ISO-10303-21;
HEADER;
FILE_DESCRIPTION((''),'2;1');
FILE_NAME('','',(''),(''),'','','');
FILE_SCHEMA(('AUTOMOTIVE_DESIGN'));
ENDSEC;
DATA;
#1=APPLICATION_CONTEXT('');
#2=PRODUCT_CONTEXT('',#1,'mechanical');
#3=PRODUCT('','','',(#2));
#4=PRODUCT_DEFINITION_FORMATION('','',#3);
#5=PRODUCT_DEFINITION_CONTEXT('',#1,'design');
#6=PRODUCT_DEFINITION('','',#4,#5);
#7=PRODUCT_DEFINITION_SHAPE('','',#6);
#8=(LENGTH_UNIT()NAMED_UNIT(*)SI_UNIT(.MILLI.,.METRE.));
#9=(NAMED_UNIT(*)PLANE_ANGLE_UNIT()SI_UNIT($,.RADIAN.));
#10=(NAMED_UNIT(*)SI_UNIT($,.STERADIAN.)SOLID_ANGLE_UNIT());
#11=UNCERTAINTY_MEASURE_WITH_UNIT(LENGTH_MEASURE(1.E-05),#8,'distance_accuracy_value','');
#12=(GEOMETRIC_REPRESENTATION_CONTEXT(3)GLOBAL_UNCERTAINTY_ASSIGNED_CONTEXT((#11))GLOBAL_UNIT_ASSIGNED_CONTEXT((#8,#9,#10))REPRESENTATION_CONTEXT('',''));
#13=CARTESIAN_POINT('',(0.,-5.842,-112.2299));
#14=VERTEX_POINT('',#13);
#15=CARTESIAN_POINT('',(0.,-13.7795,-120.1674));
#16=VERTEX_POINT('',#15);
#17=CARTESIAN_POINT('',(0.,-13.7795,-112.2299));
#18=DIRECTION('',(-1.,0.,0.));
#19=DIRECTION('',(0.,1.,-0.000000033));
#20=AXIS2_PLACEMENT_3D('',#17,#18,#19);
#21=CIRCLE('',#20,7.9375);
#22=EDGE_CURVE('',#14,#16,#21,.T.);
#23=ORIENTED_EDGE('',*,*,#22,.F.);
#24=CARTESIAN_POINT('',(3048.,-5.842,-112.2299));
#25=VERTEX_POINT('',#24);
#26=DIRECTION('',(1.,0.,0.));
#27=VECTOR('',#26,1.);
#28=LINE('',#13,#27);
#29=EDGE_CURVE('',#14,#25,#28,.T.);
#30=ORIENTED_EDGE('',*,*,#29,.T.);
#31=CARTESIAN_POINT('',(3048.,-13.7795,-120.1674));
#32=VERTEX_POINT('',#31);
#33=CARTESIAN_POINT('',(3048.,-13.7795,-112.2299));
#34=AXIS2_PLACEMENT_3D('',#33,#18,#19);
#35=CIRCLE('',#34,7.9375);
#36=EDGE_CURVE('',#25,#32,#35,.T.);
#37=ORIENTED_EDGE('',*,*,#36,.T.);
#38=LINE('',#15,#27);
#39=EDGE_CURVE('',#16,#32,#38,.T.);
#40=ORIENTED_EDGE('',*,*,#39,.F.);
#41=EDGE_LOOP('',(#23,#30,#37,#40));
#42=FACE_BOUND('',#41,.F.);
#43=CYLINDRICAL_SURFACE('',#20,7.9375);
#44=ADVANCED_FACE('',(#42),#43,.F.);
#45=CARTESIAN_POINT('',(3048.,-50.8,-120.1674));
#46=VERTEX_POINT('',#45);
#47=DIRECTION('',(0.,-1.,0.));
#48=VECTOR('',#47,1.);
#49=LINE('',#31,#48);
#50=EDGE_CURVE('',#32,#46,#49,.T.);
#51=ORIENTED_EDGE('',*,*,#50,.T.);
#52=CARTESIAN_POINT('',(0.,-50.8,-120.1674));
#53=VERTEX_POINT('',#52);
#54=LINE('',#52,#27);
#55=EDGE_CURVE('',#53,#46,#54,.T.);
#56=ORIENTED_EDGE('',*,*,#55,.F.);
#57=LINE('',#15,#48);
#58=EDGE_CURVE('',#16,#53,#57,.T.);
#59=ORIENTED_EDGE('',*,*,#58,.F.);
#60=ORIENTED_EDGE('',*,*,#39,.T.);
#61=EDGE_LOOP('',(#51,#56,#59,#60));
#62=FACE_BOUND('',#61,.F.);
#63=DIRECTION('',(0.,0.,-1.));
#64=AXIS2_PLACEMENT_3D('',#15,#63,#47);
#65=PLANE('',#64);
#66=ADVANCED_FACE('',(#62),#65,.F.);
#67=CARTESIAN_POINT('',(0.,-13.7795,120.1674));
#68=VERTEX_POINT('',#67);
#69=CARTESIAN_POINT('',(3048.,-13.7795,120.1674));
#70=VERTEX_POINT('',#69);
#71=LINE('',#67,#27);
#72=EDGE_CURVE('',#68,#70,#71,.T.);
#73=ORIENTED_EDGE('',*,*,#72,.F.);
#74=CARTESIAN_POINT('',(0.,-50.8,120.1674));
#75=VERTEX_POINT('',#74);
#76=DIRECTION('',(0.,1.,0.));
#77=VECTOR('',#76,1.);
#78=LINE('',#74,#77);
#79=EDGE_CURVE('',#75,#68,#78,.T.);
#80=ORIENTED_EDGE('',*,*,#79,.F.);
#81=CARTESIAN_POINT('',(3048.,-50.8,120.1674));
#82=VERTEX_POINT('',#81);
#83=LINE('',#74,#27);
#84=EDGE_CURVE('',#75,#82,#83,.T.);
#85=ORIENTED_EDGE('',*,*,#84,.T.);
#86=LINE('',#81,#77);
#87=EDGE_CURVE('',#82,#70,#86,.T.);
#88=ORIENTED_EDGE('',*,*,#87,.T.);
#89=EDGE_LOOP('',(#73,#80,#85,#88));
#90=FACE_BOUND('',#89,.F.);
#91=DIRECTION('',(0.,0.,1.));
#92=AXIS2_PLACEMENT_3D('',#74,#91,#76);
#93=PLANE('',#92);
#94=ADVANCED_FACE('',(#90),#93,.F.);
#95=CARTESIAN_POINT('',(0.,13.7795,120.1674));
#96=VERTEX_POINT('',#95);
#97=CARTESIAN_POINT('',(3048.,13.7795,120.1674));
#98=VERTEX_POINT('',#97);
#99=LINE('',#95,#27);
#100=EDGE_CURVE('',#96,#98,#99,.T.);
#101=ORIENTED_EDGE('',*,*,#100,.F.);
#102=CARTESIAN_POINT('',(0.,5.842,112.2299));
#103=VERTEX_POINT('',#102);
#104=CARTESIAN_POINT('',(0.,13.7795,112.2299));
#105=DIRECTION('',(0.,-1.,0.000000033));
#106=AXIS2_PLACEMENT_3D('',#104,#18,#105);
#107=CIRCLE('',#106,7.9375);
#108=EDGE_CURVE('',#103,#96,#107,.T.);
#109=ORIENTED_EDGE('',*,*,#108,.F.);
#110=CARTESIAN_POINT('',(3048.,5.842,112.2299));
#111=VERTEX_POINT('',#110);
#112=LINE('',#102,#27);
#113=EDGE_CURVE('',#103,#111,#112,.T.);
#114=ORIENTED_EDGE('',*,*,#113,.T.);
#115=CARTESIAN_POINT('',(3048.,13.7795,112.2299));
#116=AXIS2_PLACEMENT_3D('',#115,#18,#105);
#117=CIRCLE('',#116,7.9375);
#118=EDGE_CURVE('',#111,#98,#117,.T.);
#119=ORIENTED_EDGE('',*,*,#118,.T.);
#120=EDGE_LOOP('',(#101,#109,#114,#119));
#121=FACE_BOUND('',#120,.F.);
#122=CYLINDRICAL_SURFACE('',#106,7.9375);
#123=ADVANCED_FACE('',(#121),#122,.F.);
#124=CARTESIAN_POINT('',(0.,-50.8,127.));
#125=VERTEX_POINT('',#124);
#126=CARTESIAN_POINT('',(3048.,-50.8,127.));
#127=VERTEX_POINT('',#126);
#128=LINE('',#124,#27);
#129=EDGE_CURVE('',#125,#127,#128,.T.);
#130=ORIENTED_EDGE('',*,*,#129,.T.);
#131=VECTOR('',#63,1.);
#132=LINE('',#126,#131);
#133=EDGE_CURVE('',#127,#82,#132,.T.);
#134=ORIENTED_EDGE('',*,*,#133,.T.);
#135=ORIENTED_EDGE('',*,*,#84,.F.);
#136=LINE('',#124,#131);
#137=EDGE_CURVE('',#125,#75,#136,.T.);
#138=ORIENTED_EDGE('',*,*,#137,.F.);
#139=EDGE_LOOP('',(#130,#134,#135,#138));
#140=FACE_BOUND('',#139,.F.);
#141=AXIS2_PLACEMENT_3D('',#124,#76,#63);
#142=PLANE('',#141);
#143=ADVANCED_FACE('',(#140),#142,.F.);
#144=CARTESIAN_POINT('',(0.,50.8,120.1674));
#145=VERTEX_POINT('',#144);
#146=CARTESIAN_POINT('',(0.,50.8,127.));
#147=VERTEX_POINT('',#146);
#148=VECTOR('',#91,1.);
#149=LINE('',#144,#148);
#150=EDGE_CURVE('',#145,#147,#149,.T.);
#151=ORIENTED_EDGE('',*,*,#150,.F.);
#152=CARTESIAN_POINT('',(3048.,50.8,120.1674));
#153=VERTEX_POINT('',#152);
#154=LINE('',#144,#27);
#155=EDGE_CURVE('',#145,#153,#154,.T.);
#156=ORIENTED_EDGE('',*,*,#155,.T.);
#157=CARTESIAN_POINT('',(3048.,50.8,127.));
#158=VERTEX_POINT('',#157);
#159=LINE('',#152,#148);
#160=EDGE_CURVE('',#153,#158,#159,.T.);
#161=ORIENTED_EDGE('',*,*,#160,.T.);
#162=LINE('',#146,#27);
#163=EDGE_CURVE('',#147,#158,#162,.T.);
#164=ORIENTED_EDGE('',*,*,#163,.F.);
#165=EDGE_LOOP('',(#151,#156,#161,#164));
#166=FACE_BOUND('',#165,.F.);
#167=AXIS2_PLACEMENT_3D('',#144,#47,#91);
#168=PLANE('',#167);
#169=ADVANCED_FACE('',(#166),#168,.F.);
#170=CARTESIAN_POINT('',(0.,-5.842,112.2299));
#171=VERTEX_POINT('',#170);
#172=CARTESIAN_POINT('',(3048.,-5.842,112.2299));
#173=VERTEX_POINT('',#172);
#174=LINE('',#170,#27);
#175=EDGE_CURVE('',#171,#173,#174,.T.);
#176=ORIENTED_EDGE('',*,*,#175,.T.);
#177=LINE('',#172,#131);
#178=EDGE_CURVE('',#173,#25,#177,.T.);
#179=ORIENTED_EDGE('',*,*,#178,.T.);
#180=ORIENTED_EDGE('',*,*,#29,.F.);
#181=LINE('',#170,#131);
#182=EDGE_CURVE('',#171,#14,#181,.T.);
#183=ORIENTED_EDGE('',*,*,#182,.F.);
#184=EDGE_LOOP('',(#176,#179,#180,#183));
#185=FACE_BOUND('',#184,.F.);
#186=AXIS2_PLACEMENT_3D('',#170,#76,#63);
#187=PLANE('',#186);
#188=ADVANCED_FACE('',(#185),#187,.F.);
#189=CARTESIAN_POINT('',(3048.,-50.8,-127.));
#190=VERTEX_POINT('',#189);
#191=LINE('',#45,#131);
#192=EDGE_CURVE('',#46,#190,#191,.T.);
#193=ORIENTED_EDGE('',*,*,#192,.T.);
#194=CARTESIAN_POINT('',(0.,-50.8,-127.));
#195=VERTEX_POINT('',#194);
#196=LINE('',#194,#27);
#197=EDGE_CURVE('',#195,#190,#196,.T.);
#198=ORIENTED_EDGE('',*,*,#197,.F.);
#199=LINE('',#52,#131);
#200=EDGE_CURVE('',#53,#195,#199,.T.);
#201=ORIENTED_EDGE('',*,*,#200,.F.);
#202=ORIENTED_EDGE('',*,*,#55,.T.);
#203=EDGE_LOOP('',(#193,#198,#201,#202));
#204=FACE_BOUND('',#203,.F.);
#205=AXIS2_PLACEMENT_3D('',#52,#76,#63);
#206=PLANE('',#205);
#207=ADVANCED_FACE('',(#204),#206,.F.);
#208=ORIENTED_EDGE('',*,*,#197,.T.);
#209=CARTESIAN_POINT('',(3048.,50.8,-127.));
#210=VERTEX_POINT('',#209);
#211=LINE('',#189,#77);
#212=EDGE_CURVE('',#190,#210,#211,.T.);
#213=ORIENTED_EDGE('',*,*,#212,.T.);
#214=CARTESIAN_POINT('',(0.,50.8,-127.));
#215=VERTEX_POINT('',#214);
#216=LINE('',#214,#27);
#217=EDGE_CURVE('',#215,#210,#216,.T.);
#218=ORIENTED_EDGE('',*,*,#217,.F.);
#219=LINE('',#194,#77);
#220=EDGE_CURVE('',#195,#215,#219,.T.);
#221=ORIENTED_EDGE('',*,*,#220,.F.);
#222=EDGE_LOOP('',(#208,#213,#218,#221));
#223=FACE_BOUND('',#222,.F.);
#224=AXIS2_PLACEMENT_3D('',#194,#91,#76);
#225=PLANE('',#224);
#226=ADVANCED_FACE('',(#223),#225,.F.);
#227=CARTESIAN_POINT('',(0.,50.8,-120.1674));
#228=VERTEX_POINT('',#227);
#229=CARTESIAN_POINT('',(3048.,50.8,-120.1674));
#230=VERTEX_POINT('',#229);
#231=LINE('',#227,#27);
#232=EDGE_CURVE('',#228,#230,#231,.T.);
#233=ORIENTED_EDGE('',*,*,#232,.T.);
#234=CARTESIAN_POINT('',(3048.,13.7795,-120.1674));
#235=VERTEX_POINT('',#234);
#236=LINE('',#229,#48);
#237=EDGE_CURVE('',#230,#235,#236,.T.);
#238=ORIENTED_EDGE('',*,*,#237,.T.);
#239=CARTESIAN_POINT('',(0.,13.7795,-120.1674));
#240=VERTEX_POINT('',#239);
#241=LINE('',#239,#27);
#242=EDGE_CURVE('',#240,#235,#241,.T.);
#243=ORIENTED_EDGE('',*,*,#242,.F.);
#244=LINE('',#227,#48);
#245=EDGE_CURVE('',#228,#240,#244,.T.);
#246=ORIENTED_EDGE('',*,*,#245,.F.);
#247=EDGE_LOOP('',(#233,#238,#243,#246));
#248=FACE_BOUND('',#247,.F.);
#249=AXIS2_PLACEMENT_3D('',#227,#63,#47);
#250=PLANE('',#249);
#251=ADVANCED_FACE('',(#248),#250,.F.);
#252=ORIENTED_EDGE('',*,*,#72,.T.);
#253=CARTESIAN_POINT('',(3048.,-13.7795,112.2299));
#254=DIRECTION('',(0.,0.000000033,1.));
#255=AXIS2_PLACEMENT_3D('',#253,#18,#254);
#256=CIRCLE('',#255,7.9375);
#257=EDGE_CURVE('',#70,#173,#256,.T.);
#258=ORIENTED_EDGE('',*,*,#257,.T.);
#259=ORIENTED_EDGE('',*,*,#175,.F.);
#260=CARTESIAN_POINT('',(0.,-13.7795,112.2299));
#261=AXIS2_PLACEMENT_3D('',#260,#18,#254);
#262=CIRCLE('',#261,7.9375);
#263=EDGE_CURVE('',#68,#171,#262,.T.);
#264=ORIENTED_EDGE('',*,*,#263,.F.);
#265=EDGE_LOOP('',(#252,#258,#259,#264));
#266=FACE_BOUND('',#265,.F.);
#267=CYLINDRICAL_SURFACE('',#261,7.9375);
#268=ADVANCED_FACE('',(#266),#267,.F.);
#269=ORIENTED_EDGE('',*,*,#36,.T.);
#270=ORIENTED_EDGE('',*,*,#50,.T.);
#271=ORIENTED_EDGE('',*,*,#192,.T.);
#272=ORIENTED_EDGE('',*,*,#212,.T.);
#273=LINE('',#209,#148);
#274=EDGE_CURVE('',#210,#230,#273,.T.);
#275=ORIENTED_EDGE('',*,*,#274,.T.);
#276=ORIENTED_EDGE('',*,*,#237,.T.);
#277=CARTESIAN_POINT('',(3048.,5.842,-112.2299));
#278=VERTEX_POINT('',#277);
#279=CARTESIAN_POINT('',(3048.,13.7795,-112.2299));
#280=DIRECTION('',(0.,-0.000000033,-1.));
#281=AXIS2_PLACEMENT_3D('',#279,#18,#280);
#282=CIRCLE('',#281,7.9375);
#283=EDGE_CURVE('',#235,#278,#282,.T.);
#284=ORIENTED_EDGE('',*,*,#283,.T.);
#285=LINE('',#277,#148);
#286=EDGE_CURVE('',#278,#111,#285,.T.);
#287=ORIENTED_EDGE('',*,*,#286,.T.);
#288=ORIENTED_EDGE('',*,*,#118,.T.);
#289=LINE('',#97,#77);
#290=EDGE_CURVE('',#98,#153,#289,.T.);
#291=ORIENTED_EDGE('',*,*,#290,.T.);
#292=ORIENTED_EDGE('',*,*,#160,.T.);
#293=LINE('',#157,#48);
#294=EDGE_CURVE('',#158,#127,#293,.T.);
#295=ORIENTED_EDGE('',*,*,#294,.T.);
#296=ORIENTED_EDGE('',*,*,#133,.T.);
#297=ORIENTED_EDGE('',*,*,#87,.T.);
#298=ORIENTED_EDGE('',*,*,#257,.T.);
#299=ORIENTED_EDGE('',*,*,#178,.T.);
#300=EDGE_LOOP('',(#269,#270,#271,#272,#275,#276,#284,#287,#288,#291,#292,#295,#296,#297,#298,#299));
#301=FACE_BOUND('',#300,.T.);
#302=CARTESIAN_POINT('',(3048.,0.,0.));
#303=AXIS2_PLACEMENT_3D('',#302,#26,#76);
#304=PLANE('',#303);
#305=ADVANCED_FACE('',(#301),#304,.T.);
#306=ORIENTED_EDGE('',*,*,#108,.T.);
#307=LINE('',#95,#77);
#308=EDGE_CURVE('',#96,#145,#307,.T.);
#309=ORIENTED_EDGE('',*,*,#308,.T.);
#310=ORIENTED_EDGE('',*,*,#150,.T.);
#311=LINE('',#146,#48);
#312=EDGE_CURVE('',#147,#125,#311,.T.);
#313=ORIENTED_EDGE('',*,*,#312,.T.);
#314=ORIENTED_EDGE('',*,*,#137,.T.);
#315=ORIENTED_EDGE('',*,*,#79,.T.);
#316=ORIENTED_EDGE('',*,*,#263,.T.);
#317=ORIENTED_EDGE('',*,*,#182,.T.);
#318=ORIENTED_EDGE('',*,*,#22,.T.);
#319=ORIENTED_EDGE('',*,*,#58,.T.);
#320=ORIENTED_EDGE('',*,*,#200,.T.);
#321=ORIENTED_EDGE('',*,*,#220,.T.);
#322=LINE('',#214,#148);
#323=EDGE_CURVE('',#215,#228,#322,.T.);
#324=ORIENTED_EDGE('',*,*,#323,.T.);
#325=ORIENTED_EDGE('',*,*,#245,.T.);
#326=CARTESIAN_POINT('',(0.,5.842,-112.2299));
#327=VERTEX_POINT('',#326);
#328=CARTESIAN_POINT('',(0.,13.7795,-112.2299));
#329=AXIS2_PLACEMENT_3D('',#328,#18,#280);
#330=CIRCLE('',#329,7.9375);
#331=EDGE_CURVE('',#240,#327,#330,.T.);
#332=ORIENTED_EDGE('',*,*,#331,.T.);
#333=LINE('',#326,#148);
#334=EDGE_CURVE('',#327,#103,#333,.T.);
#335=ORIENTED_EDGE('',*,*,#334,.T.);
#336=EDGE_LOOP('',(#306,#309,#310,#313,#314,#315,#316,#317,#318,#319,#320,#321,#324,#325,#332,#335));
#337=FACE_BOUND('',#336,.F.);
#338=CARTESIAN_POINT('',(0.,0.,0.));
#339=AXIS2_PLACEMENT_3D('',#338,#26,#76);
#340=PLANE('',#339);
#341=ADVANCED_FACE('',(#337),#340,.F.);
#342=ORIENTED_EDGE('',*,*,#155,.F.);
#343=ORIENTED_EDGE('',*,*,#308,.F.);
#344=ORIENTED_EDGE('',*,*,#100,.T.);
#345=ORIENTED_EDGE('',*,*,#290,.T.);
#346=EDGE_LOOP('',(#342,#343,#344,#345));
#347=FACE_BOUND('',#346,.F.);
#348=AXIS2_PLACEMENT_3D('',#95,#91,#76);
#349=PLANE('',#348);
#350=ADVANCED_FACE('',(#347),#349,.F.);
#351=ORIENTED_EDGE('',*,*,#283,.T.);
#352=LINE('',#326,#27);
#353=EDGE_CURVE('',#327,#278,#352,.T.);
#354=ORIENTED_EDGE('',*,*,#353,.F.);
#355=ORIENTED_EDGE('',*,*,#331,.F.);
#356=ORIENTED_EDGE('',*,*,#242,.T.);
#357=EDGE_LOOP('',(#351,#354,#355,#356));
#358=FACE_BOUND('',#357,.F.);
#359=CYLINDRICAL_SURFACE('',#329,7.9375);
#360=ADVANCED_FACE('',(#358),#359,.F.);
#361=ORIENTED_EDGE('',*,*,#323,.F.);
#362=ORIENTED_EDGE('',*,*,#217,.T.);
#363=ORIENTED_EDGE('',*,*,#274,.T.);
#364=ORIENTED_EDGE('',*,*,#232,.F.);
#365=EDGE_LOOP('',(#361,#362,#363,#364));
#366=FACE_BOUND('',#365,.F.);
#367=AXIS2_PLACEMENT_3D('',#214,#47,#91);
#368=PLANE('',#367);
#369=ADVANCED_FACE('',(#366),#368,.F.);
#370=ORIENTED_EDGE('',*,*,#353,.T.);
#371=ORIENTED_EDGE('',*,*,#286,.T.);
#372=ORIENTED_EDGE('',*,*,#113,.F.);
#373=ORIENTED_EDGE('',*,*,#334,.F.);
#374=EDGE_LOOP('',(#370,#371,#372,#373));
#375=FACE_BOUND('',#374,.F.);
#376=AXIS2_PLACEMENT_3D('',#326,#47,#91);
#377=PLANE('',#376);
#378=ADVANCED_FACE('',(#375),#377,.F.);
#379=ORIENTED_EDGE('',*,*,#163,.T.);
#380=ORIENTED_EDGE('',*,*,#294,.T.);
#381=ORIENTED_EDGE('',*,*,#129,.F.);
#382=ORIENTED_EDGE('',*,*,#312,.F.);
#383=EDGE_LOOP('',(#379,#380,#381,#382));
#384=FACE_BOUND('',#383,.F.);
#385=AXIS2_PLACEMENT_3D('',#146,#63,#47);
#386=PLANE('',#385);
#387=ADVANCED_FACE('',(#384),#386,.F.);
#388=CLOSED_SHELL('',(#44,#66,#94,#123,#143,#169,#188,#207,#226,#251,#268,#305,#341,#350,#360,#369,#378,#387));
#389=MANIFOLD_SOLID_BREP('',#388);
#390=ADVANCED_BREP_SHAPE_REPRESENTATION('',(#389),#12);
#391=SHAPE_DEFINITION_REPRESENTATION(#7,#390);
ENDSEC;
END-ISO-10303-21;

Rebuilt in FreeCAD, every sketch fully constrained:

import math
import FreeCAD as App
import Part
import Sketcher
from FreeCAD import Vector
Q = App.Units.Quantity

doc = App.newDocument("Part")
body = doc.addObject("PartDesign::Body", "Body")

sketch1 = body.newObject("Sketcher::SketchObject", "Sketch")
sketch1.AttachmentSupport = (doc.getObject("YZ_Plane"), [""])
sketch1.MapMode = "FlatFace"
sketch1.addGeometry([
    Part.LineSegment(Vector(-6, 112, 0), Vector(-6, -112, 0)),
    Part.ArcOfCircle(Part.Circle(Vector(-14, -112, 0), Vector(0, 0, 1), 8), math.radians(-90), math.radians(0)),
    Part.LineSegment(Vector(-14, -120, 0), Vector(-51, -120, 0)),
    Part.LineSegment(Vector(-51, -120, 0), Vector(-51, -127, 0)),
    Part.LineSegment(Vector(-51, -127, 0), Vector(51, -127, 0)),
    Part.LineSegment(Vector(51, -127, 0), Vector(51, -120, 0)),
    Part.LineSegment(Vector(51, -120, 0), Vector(14, -120, 0)),
    Part.ArcOfCircle(Part.Circle(Vector(14, -112, 0), Vector(0, 0, 1), 8), math.radians(-180), math.radians(-90)),
    Part.LineSegment(Vector(6, -112, 0), Vector(6, 112, 0)),
    Part.ArcOfCircle(Part.Circle(Vector(14, 112, 0), Vector(0, 0, 1), 8), math.radians(90), math.radians(180)),
    Part.LineSegment(Vector(14, 120, 0), Vector(51, 120, 0)),
    Part.LineSegment(Vector(51, 120, 0), Vector(51, 127, 0)),
    Part.LineSegment(Vector(51, 127, 0), Vector(-51, 127, 0)),
    Part.LineSegment(Vector(-51, 127, 0), Vector(-51, 120, 0)),
    Part.LineSegment(Vector(-51, 120, 0), Vector(-14, 120, 0)),
    Part.ArcOfCircle(Part.Circle(Vector(-14, 112, 0), Vector(0, 0, 1), 8), math.radians(0), math.radians(90)),
], False)
sketch1.addConstraint([
    Sketcher.Constraint("Tangent", 0, 2, 1, 2),
    Sketcher.Constraint("Tangent", 1, 1, 2, 1),
    Sketcher.Constraint("Coincident", 2, 2, 3, 1),
    Sketcher.Constraint("Coincident", 3, 2, 4, 1),
    Sketcher.Constraint("Coincident", 4, 2, 5, 1),
    Sketcher.Constraint("Coincident", 5, 2, 6, 1),
    Sketcher.Constraint("Tangent", 6, 2, 7, 2),
    Sketcher.Constraint("Tangent", 7, 1, 8, 1),
    Sketcher.Constraint("Tangent", 8, 2, 9, 2),
    Sketcher.Constraint("Tangent", 9, 1, 10, 1),
    Sketcher.Constraint("Coincident", 10, 2, 11, 1),
    Sketcher.Constraint("Coincident", 11, 2, 12, 1),
    Sketcher.Constraint("Coincident", 12, 2, 13, 1),
    Sketcher.Constraint("Coincident", 13, 2, 14, 1),
    Sketcher.Constraint("Tangent", 14, 2, 15, 2),
    Sketcher.Constraint("Tangent", 15, 1, 0, 1),
    Sketcher.Constraint("Vertical", 0),
    Sketcher.Constraint("Horizontal", 2),
    Sketcher.Constraint("Vertical", 3),
    Sketcher.Constraint("Horizontal", 4),
    Sketcher.Constraint("Vertical", 5),
    Sketcher.Constraint("Horizontal", 6),
    Sketcher.Constraint("Vertical", 8),
    Sketcher.Constraint("Horizontal", 10),
    Sketcher.Constraint("Vertical", 11),
    Sketcher.Constraint("Horizontal", 12),
    Sketcher.Constraint("Vertical", 13),
    Sketcher.Constraint("Horizontal", 14),
    Sketcher.Constraint("Equal", 1, 7),
    Sketcher.Constraint("Equal", 7, 9),
    Sketcher.Constraint("Equal", 9, 15),
    Sketcher.Constraint("Symmetric", 1, 3, 9, 3, -1, 1),
    Sketcher.Constraint("Symmetric", 3, 2, 11, 2, -1, 1),
    Sketcher.Constraint("Symmetric", 5, 2, 13, 2, -1, 1),
    Sketcher.Constraint("Symmetric", 2, 2, 5, 2, -2),
    Sketcher.Constraint("DistanceX", 4, 1, 4, 2, Q("4 in")),
    Sketcher.Constraint("DistanceY", 3, 2, -1, 1, Q("5 in")),
    Sketcher.Constraint("Radius", 1, Q("0.3125 in")),
    Sketcher.Constraint("DistanceY", 0, 2, 0, 1, Q("8.837 in")),
    Sketcher.Constraint("DistanceX", 0, 2, -1, 1, Q("0.23 in")),
])
pad1 = body.newObject("PartDesign::Pad", "Pad")
pad1.Profile = sketch1
pad1.Length = Q("120 in")

doc.recompute()
